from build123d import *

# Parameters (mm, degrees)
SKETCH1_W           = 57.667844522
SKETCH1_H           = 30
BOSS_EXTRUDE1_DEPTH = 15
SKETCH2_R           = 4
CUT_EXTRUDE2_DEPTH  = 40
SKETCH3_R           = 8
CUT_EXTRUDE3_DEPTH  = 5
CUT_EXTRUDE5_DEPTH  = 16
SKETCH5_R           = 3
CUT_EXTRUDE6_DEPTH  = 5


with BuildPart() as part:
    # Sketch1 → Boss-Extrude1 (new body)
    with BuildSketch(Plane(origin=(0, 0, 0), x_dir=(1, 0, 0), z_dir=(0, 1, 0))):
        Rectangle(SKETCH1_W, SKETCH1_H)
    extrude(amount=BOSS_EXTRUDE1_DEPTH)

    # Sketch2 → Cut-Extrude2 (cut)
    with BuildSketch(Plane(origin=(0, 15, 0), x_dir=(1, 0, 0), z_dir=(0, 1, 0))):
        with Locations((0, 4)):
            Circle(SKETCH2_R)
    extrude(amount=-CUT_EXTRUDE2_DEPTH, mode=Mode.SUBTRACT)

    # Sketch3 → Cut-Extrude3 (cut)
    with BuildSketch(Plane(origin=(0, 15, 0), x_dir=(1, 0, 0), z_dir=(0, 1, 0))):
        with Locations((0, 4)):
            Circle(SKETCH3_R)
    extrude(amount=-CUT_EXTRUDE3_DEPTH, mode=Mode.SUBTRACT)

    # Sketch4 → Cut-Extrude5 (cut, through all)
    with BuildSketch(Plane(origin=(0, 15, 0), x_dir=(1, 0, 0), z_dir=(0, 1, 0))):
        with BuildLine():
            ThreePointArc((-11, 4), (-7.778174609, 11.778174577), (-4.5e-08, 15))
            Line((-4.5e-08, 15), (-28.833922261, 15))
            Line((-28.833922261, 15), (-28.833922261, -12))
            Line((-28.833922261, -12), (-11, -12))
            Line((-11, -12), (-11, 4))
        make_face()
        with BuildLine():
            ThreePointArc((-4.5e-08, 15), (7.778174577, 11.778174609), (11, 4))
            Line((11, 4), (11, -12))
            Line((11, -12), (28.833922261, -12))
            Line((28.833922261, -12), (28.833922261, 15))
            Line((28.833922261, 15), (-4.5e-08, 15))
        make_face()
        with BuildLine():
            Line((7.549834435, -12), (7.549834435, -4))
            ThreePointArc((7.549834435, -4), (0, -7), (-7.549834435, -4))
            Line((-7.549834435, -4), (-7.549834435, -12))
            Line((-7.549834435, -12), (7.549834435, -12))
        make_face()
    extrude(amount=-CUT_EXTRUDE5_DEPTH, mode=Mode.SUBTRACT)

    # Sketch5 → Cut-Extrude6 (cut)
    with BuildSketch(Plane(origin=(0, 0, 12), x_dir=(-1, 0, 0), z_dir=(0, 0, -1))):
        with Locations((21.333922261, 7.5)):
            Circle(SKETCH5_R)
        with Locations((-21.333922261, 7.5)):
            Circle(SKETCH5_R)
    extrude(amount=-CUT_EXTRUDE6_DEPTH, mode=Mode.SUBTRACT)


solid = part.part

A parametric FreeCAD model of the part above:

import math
import FreeCAD as App
import Part
import Sketcher
from FreeCAD import Vector
Q = App.Units.Quantity

doc = App.newDocument("Part")
body = doc.addObject("PartDesign::Body", "Body")

sketch1 = doc.addObject("Sketcher::SketchObject", "Sketch")
body.addObject(sketch1)
sketch1.AttachmentSupport = (doc.XZ_Plane, [""])
sketch1.MapMode = "FlatFace"
sketch1.addGeometry([
    Part.LineSegment(Vector(-29, -15, 0), Vector(-29, 15, 0)),
    Part.LineSegment(Vector(-29, 15, 0), Vector(29, 15, 0)),
    Part.LineSegment(Vector(29, 15, 0), Vector(29, -15, 0)),
    Part.LineSegment(Vector(29, -15, 0), Vector(-29, -15, 0)),
], False)
sketch1.addConstraint([
    Sketcher.Constraint("Coincident", 0, 2, 1, 1),
    Sketcher.Constraint("Coincident", 1, 2, 2, 1),
    Sketcher.Constraint("Coincident", 2, 2, 3, 1),
    Sketcher.Constraint("Coincident", 3, 2, 0, 1),
    Sketcher.Constraint("Vertical", 0),
    Sketcher.Constraint("Horizontal", 1),
    Sketcher.Constraint("Vertical", 2),
    Sketcher.Constraint("Horizontal", 3),
    Sketcher.Constraint("Symmetric", 0, 2, 2, 2, -1, 1),
    Sketcher.Constraint("DistanceY", 0, 1, 0, 2, Q("30 mm")),
    Sketcher.Constraint("DistanceX", 1, 1, 1, 2, Q("57.667845 mm")),
])
pad1 = doc.addObject("PartDesign::Pad", "Pad")
body.addObject(pad1)
pad1.Profile = sketch1
pad1.Length = 15
pad1.Reversed = True

sketch2 = doc.addObject("Sketcher::SketchObject", "Sketch001")
body.addObject(sketch2)
sketch2.AttachmentSupport = (doc.XZ_Plane, [""])
sketch2.MapMode = "FlatFace"
sketch2.AttachmentOffset = App.Placement(Vector(0, 0, -15), App.Rotation())
sketch2.addGeometry(Part.Circle(Vector(0, -4, 0), Vector(0, 0, 1), 4), False)
sketch2.addConstraint([
    Sketcher.Constraint("PointOnObject", 0, 3, -2),
    Sketcher.Constraint("Diameter", 0, Q("8 mm")),
    Sketcher.Constraint("DistanceY", 0, 3, -1, 1, Q("4 mm")),
])
pocket1 = doc.addObject("PartDesign::Pocket", "Pocket")
body.addObject(pocket1)
pocket1.Profile = sketch2
pocket1.Length = 40
pocket1.Reversed = True

sketch3 = doc.addObject("Sketcher::SketchObject", "Sketch002")
body.addObject(sketch3)
sketch3.AttachmentSupport = (doc.XZ_Plane, [""])
sketch3.MapMode = "FlatFace"
sketch3.AttachmentOffset = App.Placement(Vector(0, 0, -15), App.Rotation())
sketch3.addGeometry(Part.Circle(Vector(0, -4, 0), Vector(0, 0, 1), 8), False)
sketch3.addConstraint([
    Sketcher.Constraint("PointOnObject", 0, 3, -2),
    Sketcher.Constraint("Diameter", 0, Q("16 mm")),
    Sketcher.Constraint("DistanceY", 0, 3, -1, 1, Q("4 mm")),
])
pocket2 = doc.addObject("PartDesign::Pocket", "Pocket001")
body.addObject(pocket2)
pocket2.Profile = sketch3
pocket2.Length = 5
pocket2.Reversed = True

sketch4 = doc.addObject("Sketcher::SketchObject", "Sketch003")
body.addObject(sketch4)
sketch4.AttachmentSupport = (doc.XZ_Plane, [""])
sketch4.MapMode = "FlatFace"
sketch4.AttachmentOffset = App.Placement(Vector(0, 0, -15), App.Rotation())
sketch4.addGeometry([
    Part.ArcOfCircle(Part.Circle(Vector(0, -4, 0), Vector(0, 0, 1), 11), math.radians(180), math.radians(270)),
    Part.LineSegment(Vector(0, -15, 0), Vector(-29, -15, 0)),
    Part.LineSegment(Vector(-29, -15, 0), Vector(-29, 12, 0)),
    Part.LineSegment(Vector(-29, 12, 0), Vector(-11, 12, 0)),
    Part.LineSegment(Vector(-11, 12, 0), Vector(-11, -4, 0)),
    Part.ArcOfCircle(Part.Circle(Vector(0, -4, 0), Vector(0, 0, 1), 11), math.radians(-90), math.radians(0)),
    Part.LineSegment(Vector(11, -4, 0), Vector(11, 12, 0)),
    Part.LineSegment(Vector(11, 12, 0), Vector(29, 12, 0)),
    Part.LineSegment(Vector(29, 12, 0), Vector(29, -15, 0)),
    Part.LineSegment(Vector(29, -15, 0), Vector(0, -15, 0)),
    Part.LineSegment(Vector(8, 12, 0), Vector(8, 4, 0)),
    Part.ArcOfCircle(Part.Circle(Vector(0, -4, 0), Vector(0, 0, 1), 11), math.radians(47), math.radians(133)),
    Part.LineSegment(Vector(-8, 4, 0), Vector(-8, 12, 0)),
    Part.LineSegment(Vector(-8, 12, 0), Vector(8, 12, 0)),
], False)
sketch4.addConstraint([
    Sketcher.Constraint("Tangent", 0, 2, 1, 1),
    Sketcher.Constraint("Coincident", 1, 2, 2, 1),
    Sketcher.Constraint("Coincident", 2, 2, 3, 1),
    Sketcher.Constraint("Coincident", 3, 2, 4, 1),
    Sketcher.Constraint("Tangent", 4, 2, 0, 1),
    Sketcher.Constraint("Tangent", 5, 2, 6, 1),
    Sketcher.Constraint("Coincident", 6, 2, 7, 1),
    Sketcher.Constraint("Coincident", 7, 2, 8, 1),
    Sketcher.Constraint("Coincident", 8, 2, 9, 1),
    Sketcher.Constraint("Tangent", 9, 2, 5, 1),
    Sketcher.Constraint("Coincident", 10, 2, 11, 1),
    Sketcher.Constraint("Coincident", 11, 2, 12, 1),
    Sketcher.Constraint("Coincident", 12, 2, 13, 1),
    Sketcher.Constraint("Coincident", 13, 2, 10, 1),
    Sketcher.Constraint("Horizontal", 1),
    Sketcher.Constraint("Vertical", 2),
    Sketcher.Constraint("Horizontal", 3),
    Sketcher.Constraint("Vertical", 4),
    Sketcher.Constraint("Vertical", 6),
    Sketcher.Constraint("Horizontal", 7),
    Sketcher.Constraint("Vertical", 8),
    Sketcher.Constraint("Horizontal", 9),
    Sketcher.Constraint("Vertical", 10),
    Sketcher.Constraint("Vertical", 12),
    Sketcher.Constraint("Horizontal", 13),
    Sketcher.Constraint("Coincident", 5, 3, 0, 3),
    Sketcher.Constraint("Coincident", 11, 3, 0, 3),
    Sketcher.Constraint("Equal", 0, 5),
    Sketcher.Constraint("Equal", 5, 11),
    Sketcher.Constraint("Symmetric", 3, 2, 6, 2, -2),
    Sketcher.Constraint("Horizontal", 10, 2, 11, 2),
    Sketcher.Constraint("Horizontal", 7, 2, 12, 2),
    Sketcher.Constraint("Equal", 3, 7),
    Sketcher.Constraint("Radius", 0, Q("11 mm")),
    Sketcher.Constraint("DistanceY", 2, 1, 2, 2, Q("27 mm")),
    Sketcher.Constraint("DistanceY", 10, 2, 10, 1, Q("8 mm")),
    Sketcher.Constraint("DistanceY", 0, 3, -1, 1, Q("4 mm")),
    Sketcher.Constraint("DistanceX", 1, 2, 1, 1, Q("28.833922 mm")),
])
pocket3 = doc.addObject("PartDesign::Pocket", "Pocket002")
body.addObject(pocket3)
pocket3.Profile = sketch4
pocket3.Type = "ThroughAll"
pocket3.Reversed = True

sketch5 = doc.addObject("Sketcher::SketchObject", "Sketch004")
body.addObject(sketch5)
sketch5.AttachmentSupport = (doc.XY_Plane, [""])
sketch5.MapMode = "FlatFace"
sketch5.AttachmentOffset = App.Placement(Vector(0, 0, 12), App.Rotation())
sketch5.addGeometry([
    Part.Circle(Vector(-21.3, 7.5, 0), Vector(0, 0, 1), 3),
    Part.Circle(Vector(21.3, 7.5, 0), Vector(0, 0, 1), 3),
], False)
sketch5.addConstraint([
    Sketcher.Constraint("Equal", 0, 1),
    Sketcher.Constraint("Symmetric", 0, 3, 1, 3, -2),
    Sketcher.Constraint("Diameter", 0, Q("6 mm")),
    Sketcher.Constraint("DistanceY", -1, 1, 0, 3, Q("7.5 mm")),
    Sketcher.Constraint("DistanceX", 0, 3, -1, 1, Q("21.333922 mm")),
])
pocket4 = doc.addObject("PartDesign::Pocket", "Pocket003")
body.addObject(pocket4)
pocket4.Profile = sketch5
pocket4.Length = 5
pocket4.Reversed = True

doc.recompute()
